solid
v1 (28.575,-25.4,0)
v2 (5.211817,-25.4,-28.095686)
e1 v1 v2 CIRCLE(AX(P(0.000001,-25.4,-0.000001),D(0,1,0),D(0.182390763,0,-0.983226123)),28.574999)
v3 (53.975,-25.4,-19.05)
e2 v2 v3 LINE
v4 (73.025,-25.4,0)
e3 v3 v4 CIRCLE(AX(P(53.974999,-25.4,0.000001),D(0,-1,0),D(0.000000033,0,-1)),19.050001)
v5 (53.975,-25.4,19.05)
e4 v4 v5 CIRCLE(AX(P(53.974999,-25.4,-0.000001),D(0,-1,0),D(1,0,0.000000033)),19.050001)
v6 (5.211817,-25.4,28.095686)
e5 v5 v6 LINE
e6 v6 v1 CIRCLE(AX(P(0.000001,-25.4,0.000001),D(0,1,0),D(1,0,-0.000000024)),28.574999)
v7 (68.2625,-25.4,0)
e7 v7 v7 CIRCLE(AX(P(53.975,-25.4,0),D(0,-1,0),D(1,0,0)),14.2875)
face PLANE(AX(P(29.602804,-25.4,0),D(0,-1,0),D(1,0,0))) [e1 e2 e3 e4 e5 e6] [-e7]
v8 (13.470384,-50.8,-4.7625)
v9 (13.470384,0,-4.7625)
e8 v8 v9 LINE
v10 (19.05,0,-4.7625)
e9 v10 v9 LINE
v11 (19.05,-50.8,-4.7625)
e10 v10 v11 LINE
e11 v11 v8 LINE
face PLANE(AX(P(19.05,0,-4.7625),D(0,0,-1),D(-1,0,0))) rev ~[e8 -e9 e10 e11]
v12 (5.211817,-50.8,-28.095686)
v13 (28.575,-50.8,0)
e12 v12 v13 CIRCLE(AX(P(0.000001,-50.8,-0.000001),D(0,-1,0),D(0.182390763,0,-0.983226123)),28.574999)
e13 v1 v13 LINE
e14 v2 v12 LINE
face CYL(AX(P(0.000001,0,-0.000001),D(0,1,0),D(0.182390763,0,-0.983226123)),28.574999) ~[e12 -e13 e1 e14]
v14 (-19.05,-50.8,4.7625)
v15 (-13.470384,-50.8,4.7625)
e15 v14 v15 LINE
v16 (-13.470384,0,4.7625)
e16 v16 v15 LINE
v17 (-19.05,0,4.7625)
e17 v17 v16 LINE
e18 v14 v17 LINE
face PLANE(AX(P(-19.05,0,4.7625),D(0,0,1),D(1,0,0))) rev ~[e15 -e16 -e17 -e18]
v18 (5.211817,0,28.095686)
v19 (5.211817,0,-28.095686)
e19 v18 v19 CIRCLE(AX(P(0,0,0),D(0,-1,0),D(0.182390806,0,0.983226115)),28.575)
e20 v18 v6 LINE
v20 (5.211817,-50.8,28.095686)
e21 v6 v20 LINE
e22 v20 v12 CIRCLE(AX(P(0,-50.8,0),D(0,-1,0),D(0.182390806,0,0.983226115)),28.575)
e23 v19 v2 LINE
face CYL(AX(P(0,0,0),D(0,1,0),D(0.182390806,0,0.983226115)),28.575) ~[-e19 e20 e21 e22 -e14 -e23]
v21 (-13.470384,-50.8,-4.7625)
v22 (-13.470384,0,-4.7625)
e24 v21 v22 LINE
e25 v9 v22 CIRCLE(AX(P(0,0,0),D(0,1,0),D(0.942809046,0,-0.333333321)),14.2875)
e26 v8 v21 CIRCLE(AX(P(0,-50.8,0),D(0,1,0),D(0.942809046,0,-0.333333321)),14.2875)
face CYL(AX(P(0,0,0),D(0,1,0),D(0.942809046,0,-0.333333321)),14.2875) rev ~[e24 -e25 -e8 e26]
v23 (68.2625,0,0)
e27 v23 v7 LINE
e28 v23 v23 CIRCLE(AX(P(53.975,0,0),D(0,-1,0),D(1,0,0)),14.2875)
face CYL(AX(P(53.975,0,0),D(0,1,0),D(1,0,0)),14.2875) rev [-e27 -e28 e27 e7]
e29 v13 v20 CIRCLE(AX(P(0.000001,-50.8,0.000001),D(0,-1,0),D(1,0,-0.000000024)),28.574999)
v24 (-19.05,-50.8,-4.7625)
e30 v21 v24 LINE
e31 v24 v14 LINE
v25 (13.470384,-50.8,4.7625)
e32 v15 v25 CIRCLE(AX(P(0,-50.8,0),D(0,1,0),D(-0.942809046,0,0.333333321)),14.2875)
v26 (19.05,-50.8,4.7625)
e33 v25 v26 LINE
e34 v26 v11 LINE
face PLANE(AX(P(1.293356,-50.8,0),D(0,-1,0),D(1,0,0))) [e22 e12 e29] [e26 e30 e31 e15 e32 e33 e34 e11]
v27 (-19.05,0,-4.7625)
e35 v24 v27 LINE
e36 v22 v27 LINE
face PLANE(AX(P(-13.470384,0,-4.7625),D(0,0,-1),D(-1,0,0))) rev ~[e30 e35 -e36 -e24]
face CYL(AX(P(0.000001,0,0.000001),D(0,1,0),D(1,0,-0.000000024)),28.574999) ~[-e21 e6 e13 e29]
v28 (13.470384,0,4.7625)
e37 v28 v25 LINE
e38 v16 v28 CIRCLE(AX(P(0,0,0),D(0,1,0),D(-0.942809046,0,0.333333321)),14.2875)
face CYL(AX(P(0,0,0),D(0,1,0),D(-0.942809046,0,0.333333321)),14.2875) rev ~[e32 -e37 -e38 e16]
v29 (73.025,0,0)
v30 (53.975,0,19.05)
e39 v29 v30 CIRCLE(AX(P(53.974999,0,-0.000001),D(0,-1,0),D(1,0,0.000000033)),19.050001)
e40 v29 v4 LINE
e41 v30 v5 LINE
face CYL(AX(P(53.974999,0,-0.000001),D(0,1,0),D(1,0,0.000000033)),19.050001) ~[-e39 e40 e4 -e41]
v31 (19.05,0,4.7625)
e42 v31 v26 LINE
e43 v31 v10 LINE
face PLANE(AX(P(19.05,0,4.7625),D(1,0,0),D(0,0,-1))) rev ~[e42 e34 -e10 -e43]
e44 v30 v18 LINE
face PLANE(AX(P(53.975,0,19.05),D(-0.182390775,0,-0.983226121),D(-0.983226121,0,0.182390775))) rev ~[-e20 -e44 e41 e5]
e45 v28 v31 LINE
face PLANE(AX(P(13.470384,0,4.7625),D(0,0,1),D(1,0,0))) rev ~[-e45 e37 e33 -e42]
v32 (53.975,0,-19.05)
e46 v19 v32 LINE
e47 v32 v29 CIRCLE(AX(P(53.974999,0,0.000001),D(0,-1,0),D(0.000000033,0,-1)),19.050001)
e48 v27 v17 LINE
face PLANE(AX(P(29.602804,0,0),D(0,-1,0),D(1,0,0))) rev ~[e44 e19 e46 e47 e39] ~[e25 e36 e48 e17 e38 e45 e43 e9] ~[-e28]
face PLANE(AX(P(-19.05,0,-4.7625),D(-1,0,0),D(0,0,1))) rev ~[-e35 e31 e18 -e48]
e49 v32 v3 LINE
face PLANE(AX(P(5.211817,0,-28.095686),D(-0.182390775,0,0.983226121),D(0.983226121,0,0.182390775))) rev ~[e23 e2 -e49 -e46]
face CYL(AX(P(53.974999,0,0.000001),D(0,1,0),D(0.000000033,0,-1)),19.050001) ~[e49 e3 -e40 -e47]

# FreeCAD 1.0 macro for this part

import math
import FreeCAD as App
import Part
import Sketcher
Q = App.Units.Quantity

doc = App.newDocument("Part")
body = doc.addObject("PartDesign::Body", "Body")

# Sketch on XZ plane
sketch1 = body.newObject("Sketcher::SketchObject", "Sketch")
sketch1.AttachmentSupport = (doc.getObject("XZ_Plane"), [""])
sketch1.MapMode = "FlatFace"
sketch1.addGeometry([
    Part.LineSegment(App.Vector(5, -28, 0), App.Vector(54, -19, 0)),  # 0
    Part.ArcOfCircle(Part.Circle(App.Vector(54, 0, 0), App.Vector(0, 0, 1), 19), math.radians(-90), math.radians(0)),  # 1
    Part.ArcOfCircle(Part.Circle(App.Vector(54, 0, 0), App.Vector(0, 0, 1), 19), math.radians(0), math.radians(90)),  # 2
    Part.LineSegment(App.Vector(54, 19, 0), App.Vector(5, 28, 0)),  # 3
    Part.ArcOfCircle(Part.Circle(App.Vector(0, 0, 0), App.Vector(0, 0, 1), 29), math.radians(79), math.radians(281)),  # 4
    Part.LineSegment(App.Vector(-19, 5, 0), App.Vector(-13, 5, 0)),  # 5
    Part.ArcOfCircle(Part.Circle(App.Vector(0, 0, 0), App.Vector(0, 0, 1), 14), math.radians(19), math.radians(161)),  # 6
    Part.LineSegment(App.Vector(13, 5, 0), App.Vector(19, 5, 0)),  # 7
    Part.LineSegment(App.Vector(19, 5, 0), App.Vector(19, -5, 0)),  # 8
    Part.LineSegment(App.Vector(19, -5, 0), App.Vector(13, -5, 0)),  # 9
    Part.ArcOfCircle(Part.Circle(App.Vector(0, 0, 0), App.Vector(0, 0, 1), 14), math.radians(-161), math.radians(-19)),  # 10
    Part.LineSegment(App.Vector(-13, -5, 0), App.Vector(-19, -5, 0)),  # 11
    Part.LineSegment(App.Vector(-19, -5, 0), App.Vector(-19, 5, 0)),  # 12
    Part.Circle(App.Vector(54, 0, 0), App.Vector(0, 0, 1), 14),  # 13
], False)
sketch1.addConstraint([
    Sketcher.Constraint("Coincident", 0, 2, 1, 1),
    Sketcher.Constraint("Tangent", 1, 2, 2, 1),
    Sketcher.Constraint("Coincident", 2, 2, 3, 1),
    Sketcher.Constraint("Tangent", 3, 2, 4, 1),
    Sketcher.Constraint("Tangent", 4, 2, 0, 1),
    Sketcher.Constraint("Coincident", 5, 2, 6, 2),
    Sketcher.Constraint("Coincident", 6, 1, 7, 1),
    Sketcher.Constraint("Coincident", 7, 2, 8, 1),
    Sketcher.Constraint("Coincident", 8, 2, 9, 1),
    Sketcher.Constraint("Coincident", 9, 2, 10, 2),
    Sketcher.Constraint("Coincident", 10, 1, 11, 1),
    Sketcher.Constraint("Coincident", 11, 2, 12, 1),
    Sketcher.Constraint("Coincident", 12, 2, 5, 1),
    Sketcher.Constraint("Horizontal", 5),
    Sketcher.Constraint("Horizontal", 7),
    Sketcher.Constraint("Vertical", 8),
    Sketcher.Constraint("Horizontal", 9),
    Sketcher.Constraint("Horizontal", 11),
    Sketcher.Constraint("Vertical", 12),
    Sketcher.Constraint("Coincident", 4, 3, -1, 1),
    Sketcher.Constraint("Coincident", 6, 3, -1, 1),
    Sketcher.Constraint("Coincident", 10, 3, -1, 1),
    Sketcher.Constraint("Coincident", 13, 3, 1, 3),
    Sketcher.Constraint("Equal", 1, 2),
    Sketcher.Constraint("Equal", 6, 10),
    Sketcher.Constraint("Equal", 10, 13),
    Sketcher.Constraint("Symmetric", 7, 2, 11, 2, -1, 1),
    Sketcher.Constraint("Symmetric", 0, 2, 2, 2, -1),
    Sketcher.Constraint("PointOnObject", 1, 2, -1),
    Sketcher.Constraint("Horizontal", 5, 2, 6, 1),
    Sketcher.Constraint("Horizontal", 9, 2, 10, 1),
    Sketcher.Constraint("Vertical", 13, 3, 0, 2),
    Sketcher.Constraint("Radius", 1, Q("0.75 in")),
    Sketcher.Constraint("Diameter", 13, Q("1.125 in")),
    Sketcher.Constraint("Radius", 4, Q("1.125 in")),
    Sketcher.Constraint("DistanceY", 8, 2, 8, 1, Q("0.375 in")),
    Sketcher.Constraint("DistanceX", -1, 1, 7, 2, Q("0.75 in")),
    Sketcher.Constraint("DistanceX", -1, 1, 1, 3, Q("2.125 in")),
])
pad1 = body.newObject("PartDesign::Pad", "Pad")
pad1.Profile = sketch1
pad1.Length = Q("1 in")

# Sketch on XZ plane
sketch2 = body.newObject("Sketcher::SketchObject", "Sketch001")
sketch2.AttachmentSupport = (doc.getObject("XZ_Plane"), [""])
sketch2.MapMode = "FlatFace"
sketch2.addGeometry([
    Part.ArcOfCircle(Part.Circle(App.Vector(0, 0, 0), App.Vector(0, 0, 1), 29), math.radians(-79), math.radians(0)),  # 0
    Part.ArcOfCircle(Part.Circle(App.Vector(0, 0, 0), App.Vector(0, 0, 1), 29), math.radians(0), math.radians(79)),  # 1
    Part.ArcOfCircle(Part.Circle(App.Vector(0, 0, 0), App.Vector(0, 0, 1), 29), math.radians(79), math.radians(281)),  # 2
    Part.LineSegment(App.Vector(-19, 5, 0), App.Vector(-13, 5, 0)),  # 3
    Part.ArcOfCircle(Part.Circle(App.Vector(0, 0, 0), App.Vector(0, 0, 1), 14), math.radians(19), math.radians(161)),  # 4
    Part.LineSegment(App.Vector(13, 5, 0), App.Vector(19, 5, 0)),  # 5
    Part.LineSegment(App.Vector(19, 5, 0), App.Vector(19, -5, 0)),  # 6
    Part.LineSegment(App.Vector(19, -5, 0), App.Vector(13, -5, 0)),  # 7
    Part.ArcOfCircle(Part.Circle(App.Vector(0, 0, 0), App.Vector(0, 0, 1), 14), math.radians(-161), math.radians(-19)),  # 8
    Part.LineSegment(App.Vector(-13, -5, 0), App.Vector(-19, -5, 0)),  # 9
    Part.LineSegment(App.Vector(-19, -5, 0), App.Vector(-19, 5, 0)),  # 10
], False)
sketch2.addConstraint([
    Sketcher.Constraint("Tangent", 0, 2, 1, 1),
    Sketcher.Constraint("Tangent", 1, 2, 2, 1),
    Sketcher.Constraint("Tangent", 2, 2, 0, 1),
    Sketcher.Constraint("Coincident", 3, 2, 4, 2),
    Sketcher.Constraint("Coincident", 4, 1, 5, 1),
    Sketcher.Constraint("Coincident", 5, 2, 6, 1),
    Sketcher.Constraint("Coincident", 6, 2, 7, 1),
    Sketcher.Constraint("Coincident", 7, 2, 8, 2),
    Sketcher.Constraint("Coincident", 8, 1, 9, 1),
    Sketcher.Constraint("Coincident", 9, 2, 10, 1),
    Sketcher.Constraint("Coincident", 10, 2, 3, 1),
    Sketcher.Constraint("Horizontal", 3),
    Sketcher.Constraint("Horizontal", 5),
    Sketcher.Constraint("Vertical", 6),
    Sketcher.Constraint("Horizontal", 7),
    Sketcher.Constraint("Horizontal", 9),
    Sketcher.Constraint("Vertical", 10),
    Sketcher.Constraint("Coincident", 0, 3, -1, 1),
    Sketcher.Constraint("Coincident", 4, 3, -1, 1),
    Sketcher.Constraint("Coincident", 8, 3, -1, 1),
    Sketcher.Constraint("Equal", 4, 8),
    Sketcher.Constraint("Symmetric", 5, 2, 9, 2, -1, 1),
    Sketcher.Constraint("PointOnObject", 0, 2, -1),
    Sketcher.Constraint("Horizontal", 3, 2, 4, 1),
    Sketcher.Constraint("Horizontal", 7, 2, 8, 1),
    Sketcher.Constraint("Vertical", 1, 2, 2, 2),
    Sketcher.Constraint("Radius", 0, Q("1.125 in")),
    Sketcher.Constraint("Radius", 4, Q("0.5625 in")),
    Sketcher.Constraint("DistanceY", 6, 2, 6, 1, Q("0.375 in")),
    Sketcher.Constraint("DistanceX", -1, 1, 5, 2, Q("0.75 in")),
    Sketcher.Constraint("DistanceX", -1, 1, 1, 2, Q("5.211817 mm")),
])
pad2 = body.newObject("PartDesign::Pad", "Pad001")
pad2.Profile = sketch2
pad2.Length = Q("2 in")

doc.recompute()
